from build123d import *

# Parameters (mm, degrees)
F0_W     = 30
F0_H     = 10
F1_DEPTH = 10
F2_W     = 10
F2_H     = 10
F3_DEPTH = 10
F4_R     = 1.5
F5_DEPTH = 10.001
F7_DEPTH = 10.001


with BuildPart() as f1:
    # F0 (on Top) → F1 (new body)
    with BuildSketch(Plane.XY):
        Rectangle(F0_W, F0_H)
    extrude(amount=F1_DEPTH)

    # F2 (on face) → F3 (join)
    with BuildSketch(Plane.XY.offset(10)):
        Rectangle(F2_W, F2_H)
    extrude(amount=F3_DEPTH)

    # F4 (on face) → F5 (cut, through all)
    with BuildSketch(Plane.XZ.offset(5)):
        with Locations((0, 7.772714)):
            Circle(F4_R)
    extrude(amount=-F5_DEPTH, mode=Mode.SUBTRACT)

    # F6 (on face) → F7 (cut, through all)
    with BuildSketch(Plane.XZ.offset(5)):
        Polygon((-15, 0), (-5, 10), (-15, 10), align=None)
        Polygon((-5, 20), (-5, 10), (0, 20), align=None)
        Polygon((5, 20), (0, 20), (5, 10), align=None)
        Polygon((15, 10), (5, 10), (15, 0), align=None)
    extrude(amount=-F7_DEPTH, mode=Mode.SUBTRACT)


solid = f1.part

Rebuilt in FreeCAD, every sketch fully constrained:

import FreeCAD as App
import Part
import Sketcher
from FreeCAD import Vector
Q = App.Units.Quantity


def add_polygon(sketch, points):
    """Adds a closed chain of lines whose ends are joined by coincident constraints."""
    first, n = sketch.GeometryCount, len(points)
    for a, b in zip(points, points[1:] + points[:1]):
        sketch.addGeometry(Part.LineSegment(App.Vector(*a, 0), App.Vector(*b, 0)), False)
    for i in range(n):
        sketch.addConstraint(Sketcher.Constraint("Coincident", first + i, 2, first + (i + 1) % n, 1))

doc = App.newDocument("Part")
body = doc.addObject("PartDesign::Body", "Body")

# Sketch on XY plane
sketch1 = body.newObject("Sketcher::SketchObject", "Sketch")
sketch1.AttachmentSupport = (doc.getObject("XY_Plane"), [""])
sketch1.MapMode = "FlatFace"
add_polygon(sketch1, [(-15, 5), (-15, -5), (15, -5), (15, 5)])  # lines 0-3
sketch1.addConstraint([
    Sketcher.Constraint("Vertical", 0),
    Sketcher.Constraint("Horizontal", 1),
    Sketcher.Constraint("Vertical", 2),
    Sketcher.Constraint("Horizontal", 3),
    Sketcher.Constraint("Symmetric", 0, 2, 2, 2, -1, 1),
    Sketcher.Constraint("DistanceX", 1, 1, 1, 2, Q("30 mm")),
    Sketcher.Constraint("DistanceY", 0, 2, 0, 1, Q("10 mm")),
])
pad1 = body.newObject("PartDesign::Pad", "Pad")
pad1.Profile = sketch1
pad1.Length = 10

# Sketch on XY plane
sketch2 = body.newObject("Sketcher::SketchObject", "Sketch001")
sketch2.AttachmentSupport = (doc.getObject("XY_Plane"), [""])
sketch2.MapMode = "FlatFace"
sketch2.AttachmentOffset = App.Placement(Vector(0, 0, 10), App.Rotation())
add_polygon(sketch2, [(-5, 5), (-5, -5), (5, -5), (5, 5)])  # lines 0-3
sketch2.addConstraint([
    Sketcher.Constraint("Vertical", 0),
    Sketcher.Constraint("Horizontal", 1),
    Sketcher.Constraint("Vertical", 2),
    Sketcher.Constraint("Horizontal", 3),
    Sketcher.Constraint("Symmetric", 0, 2, 2, 2, -1, 1),
    Sketcher.Constraint("Equal", 3, 0),
    Sketcher.Constraint("DistanceX", 1, 1, 1, 2, Q("10 mm")),
])
pad2 = body.newObject("PartDesign::Pad", "Pad001")
pad2.Profile = sketch2
pad2.Length = 10

# Sketch on XZ plane
sketch3 = body.newObject("Sketcher::SketchObject", "Sketch002")
sketch3.AttachmentSupport = (doc.getObject("XZ_Plane"), [""])
sketch3.MapMode = "FlatFace"
sketch3.AttachmentOffset = App.Placement(Vector(0, 0, 5), App.Rotation())
sketch3.addGeometry(Part.Circle(Vector(0, 7.8, 0), Vector(0, 0, 1), 1.5), False)
sketch3.addConstraint([
    Sketcher.Constraint("PointOnObject", 0, 3, -2),
    Sketcher.Constraint("Diameter", 0, Q("3 mm")),
    Sketcher.Constraint("DistanceY", -1, 1, 0, 3, Q("7.772714 mm")),
])
pocket1 = body.newObject("PartDesign::Pocket", "Pocket")
pocket1.Profile = sketch3
pocket1.Type = "ThroughAll"

# Sketch on XZ plane
sketch4 = body.newObject("Sketcher::SketchObject", "Sketch003")
sketch4.AttachmentSupport = (doc.getObject("XZ_Plane"), [""])
sketch4.MapMode = "FlatFace"
sketch4.AttachmentOffset = App.Placement(Vector(0, 0, 5), App.Rotation())
add_polygon(sketch4, [(-15, 0), (-5, 10), (-15, 10)])  # lines 0-2
add_polygon(sketch4, [(-5, 20), (-5, 10), (0, 20)])  # lines 3-5
add_polygon(sketch4, [(5, 20), (0, 20), (5, 10)])  # lines 6-8
add_polygon(sketch4, [(15, 10), (5, 10), (15, 0)])  # lines 9-11
sketch4.addConstraint([
    Sketcher.Constraint("Horizontal", 1),
    Sketcher.Constraint("Vertical", 2),
    Sketcher.Constraint("Vertical", 3),
    Sketcher.Constraint("Horizontal", 5),
    Sketcher.Constraint("Horizontal", 6),
    Sketcher.Constraint("Vertical", 8),
    Sketcher.Constraint("Horizontal", 9),
    Sketcher.Constraint("Vertical", 11),
    Sketcher.Constraint("Coincident", 3, 2, 0, 2),
    Sketcher.Constraint("Coincident", 6, 2, 4, 2),
    Sketcher.Constraint("Coincident", 9, 2, 7, 2),
    Sketcher.Constraint("Symmetric", 2, 2, 10, 2, -1, 1),
    Sketcher.Constraint("Symmetric", 0, 2, 7, 2, -2),
    Sketcher.Constraint("PointOnObject", 2, 2, -1),
    Sketcher.Constraint("PointOnObject", 4, 2, -2),
    Sketcher.Constraint("Perpendicular", 0, 10),
    Sketcher.Constraint("Equal", 2, 3),
    Sketcher.Constraint("DistanceX", 1, 2, 1, 1, Q("10 mm")),
    Sketcher.Constraint("DistanceX", 5, 2, 5, 1, Q("5 mm")),
])
pocket2 = body.newObject("PartDesign::Pocket", "Pocket001")
pocket2.Profile = sketch4
pocket2.Type = "ThroughAll"

doc.recompute()
